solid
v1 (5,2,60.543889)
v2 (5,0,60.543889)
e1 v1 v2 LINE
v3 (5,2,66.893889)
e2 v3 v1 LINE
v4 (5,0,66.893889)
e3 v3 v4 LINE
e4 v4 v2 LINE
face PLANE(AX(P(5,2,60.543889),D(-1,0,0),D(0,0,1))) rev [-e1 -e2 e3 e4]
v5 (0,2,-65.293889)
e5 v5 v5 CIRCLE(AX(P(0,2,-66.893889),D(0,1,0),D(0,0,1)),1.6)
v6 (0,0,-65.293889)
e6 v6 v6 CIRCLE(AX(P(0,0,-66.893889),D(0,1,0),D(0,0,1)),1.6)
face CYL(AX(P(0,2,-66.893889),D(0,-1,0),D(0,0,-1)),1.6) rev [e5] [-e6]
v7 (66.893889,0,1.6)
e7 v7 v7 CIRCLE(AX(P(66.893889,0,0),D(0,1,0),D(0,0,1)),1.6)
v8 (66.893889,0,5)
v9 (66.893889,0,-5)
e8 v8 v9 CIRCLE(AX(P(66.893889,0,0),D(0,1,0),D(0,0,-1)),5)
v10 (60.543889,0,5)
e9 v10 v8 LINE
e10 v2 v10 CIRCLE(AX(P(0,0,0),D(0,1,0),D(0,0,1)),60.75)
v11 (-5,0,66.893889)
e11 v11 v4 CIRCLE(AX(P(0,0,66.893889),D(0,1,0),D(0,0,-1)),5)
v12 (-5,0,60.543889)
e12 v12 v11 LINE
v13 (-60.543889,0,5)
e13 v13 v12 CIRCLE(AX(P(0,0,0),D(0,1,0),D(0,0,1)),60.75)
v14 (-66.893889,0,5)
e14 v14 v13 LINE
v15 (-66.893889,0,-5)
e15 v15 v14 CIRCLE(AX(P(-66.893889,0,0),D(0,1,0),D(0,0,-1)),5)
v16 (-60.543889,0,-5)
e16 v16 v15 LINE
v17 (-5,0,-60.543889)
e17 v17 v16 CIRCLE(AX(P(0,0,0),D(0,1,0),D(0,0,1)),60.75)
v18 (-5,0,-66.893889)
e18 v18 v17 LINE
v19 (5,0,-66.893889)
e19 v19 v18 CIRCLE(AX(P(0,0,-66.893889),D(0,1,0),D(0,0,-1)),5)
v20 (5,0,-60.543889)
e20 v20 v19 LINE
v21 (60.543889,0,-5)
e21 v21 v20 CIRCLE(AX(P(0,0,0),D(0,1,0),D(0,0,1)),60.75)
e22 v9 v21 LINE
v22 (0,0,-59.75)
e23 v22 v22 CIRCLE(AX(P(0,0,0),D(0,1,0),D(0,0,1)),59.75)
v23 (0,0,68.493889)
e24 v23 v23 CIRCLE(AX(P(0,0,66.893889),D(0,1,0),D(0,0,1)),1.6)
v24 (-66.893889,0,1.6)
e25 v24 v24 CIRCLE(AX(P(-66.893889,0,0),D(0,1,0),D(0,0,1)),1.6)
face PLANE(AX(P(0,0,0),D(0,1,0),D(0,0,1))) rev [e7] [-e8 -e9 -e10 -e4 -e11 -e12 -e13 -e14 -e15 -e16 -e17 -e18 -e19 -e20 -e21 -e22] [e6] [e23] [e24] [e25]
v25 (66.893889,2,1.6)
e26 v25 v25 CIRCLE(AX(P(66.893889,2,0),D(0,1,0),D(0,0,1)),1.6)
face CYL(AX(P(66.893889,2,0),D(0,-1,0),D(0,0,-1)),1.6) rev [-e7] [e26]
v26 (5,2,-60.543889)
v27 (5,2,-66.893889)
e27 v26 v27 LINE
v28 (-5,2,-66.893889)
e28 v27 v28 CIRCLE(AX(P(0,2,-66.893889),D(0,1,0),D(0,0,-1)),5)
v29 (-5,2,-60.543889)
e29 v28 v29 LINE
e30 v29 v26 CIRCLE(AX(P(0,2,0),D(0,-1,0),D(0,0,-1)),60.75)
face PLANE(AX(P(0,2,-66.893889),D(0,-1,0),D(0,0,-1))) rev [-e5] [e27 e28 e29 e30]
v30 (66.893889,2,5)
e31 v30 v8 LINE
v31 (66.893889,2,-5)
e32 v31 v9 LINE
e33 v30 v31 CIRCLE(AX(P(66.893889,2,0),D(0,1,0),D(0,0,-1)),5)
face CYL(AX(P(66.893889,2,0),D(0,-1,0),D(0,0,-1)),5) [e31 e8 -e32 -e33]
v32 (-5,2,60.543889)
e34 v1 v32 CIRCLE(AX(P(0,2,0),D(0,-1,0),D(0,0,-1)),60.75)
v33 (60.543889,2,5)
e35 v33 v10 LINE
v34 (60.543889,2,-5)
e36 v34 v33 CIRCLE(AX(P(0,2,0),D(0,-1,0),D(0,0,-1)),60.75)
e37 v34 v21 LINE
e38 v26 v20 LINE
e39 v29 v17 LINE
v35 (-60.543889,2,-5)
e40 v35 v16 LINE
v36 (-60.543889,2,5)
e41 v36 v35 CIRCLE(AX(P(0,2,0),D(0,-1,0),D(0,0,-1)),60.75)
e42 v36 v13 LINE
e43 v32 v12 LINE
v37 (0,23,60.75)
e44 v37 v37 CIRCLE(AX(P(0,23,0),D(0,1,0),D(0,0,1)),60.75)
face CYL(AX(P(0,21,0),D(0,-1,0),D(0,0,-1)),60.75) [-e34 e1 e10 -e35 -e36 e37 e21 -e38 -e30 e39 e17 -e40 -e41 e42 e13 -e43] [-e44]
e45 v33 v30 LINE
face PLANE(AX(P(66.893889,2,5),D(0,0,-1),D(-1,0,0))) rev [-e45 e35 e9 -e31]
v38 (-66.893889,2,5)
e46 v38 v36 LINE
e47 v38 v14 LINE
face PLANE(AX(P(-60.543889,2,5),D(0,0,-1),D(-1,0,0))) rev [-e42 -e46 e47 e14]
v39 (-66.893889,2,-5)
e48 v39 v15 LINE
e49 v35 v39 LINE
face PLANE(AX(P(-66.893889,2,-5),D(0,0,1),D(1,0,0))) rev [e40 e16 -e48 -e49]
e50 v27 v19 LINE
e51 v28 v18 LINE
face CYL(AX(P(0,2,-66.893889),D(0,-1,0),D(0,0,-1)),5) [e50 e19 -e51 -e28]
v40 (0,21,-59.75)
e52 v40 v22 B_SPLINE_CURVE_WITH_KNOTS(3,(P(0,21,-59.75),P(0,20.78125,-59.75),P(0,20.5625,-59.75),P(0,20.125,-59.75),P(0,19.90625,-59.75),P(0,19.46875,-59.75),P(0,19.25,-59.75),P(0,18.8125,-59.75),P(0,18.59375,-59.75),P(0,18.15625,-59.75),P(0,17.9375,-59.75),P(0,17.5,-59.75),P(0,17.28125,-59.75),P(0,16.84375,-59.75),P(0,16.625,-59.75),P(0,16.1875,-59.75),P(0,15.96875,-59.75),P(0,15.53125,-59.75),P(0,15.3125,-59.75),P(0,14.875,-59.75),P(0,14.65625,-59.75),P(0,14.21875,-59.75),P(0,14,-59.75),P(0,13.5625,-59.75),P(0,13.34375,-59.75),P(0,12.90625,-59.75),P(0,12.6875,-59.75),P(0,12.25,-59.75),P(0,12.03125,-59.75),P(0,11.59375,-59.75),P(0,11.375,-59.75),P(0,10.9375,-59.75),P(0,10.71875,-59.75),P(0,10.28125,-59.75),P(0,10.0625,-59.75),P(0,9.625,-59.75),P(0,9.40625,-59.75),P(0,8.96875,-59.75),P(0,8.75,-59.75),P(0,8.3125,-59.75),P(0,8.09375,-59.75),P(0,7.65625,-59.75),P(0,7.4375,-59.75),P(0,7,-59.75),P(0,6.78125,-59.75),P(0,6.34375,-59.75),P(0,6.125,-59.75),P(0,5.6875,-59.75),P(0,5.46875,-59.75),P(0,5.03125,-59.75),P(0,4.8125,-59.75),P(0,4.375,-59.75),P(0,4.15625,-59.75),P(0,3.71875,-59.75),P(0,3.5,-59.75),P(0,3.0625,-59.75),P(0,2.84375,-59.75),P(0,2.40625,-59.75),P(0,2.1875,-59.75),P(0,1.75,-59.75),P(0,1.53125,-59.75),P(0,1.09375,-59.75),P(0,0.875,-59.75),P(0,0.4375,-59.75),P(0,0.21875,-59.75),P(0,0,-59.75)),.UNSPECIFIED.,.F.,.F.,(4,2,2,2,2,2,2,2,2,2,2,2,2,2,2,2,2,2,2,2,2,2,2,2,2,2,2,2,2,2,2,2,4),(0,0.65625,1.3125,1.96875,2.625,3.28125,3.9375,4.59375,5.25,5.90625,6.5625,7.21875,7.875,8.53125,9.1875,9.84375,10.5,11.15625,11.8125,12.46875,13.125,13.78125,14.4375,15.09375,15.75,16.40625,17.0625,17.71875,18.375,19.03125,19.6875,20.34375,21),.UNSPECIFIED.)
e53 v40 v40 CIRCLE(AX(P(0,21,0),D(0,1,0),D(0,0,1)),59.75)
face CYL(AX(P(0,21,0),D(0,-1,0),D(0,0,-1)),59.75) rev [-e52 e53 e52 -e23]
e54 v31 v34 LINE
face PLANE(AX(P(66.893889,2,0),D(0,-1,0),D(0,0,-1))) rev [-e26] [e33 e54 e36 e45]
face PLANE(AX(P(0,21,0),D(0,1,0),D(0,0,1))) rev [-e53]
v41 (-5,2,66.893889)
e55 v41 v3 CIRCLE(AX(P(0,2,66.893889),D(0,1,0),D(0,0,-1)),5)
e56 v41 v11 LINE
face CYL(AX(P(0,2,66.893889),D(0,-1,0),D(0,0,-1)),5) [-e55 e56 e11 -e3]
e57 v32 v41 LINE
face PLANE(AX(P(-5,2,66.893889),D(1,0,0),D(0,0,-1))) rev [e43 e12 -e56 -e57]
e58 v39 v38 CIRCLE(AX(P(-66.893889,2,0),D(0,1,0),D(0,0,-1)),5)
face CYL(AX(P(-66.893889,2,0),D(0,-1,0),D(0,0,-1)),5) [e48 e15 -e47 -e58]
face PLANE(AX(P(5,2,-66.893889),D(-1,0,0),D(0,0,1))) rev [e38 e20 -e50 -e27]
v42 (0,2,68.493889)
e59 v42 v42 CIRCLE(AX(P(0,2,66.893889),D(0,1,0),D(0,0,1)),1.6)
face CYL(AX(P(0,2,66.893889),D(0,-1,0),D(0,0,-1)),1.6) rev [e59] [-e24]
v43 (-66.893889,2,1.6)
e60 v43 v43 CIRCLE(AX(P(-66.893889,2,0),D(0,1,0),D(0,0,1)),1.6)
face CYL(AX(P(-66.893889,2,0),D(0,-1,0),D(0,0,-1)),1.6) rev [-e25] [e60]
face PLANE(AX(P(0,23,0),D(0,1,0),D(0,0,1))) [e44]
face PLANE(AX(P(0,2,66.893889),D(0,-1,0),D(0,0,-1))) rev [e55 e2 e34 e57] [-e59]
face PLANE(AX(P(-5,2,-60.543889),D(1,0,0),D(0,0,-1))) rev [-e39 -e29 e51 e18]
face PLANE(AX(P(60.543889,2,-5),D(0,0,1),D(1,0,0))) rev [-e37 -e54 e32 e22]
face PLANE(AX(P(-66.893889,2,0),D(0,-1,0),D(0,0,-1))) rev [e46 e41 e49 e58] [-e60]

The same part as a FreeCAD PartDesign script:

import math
import FreeCAD as App
import Part
import Sketcher
Q = App.Units.Quantity

doc = App.newDocument("Part")
body = doc.addObject("PartDesign::Body", "Body")

# Sketch on XZ plane
sketch1 = doc.addObject("Sketcher::SketchObject", "Sketch")
body.addObject(sketch1)
sketch1.AttachmentSupport = (doc.XZ_Plane, [""])
sketch1.MapMode = "FlatFace"
sketch1.addGeometry([
    Part.Circle(App.Vector(0, 0, 0), App.Vector(0, 0, 1), 60.75),
    Part.Circle(App.Vector(0, 0, 0), App.Vector(0, 0, 1), 59.75),
], False)
sketch1.addConstraint([
    Sketcher.Constraint("Coincident", 0, 3, -1, 1),
    Sketcher.Constraint("Coincident", 1, 3, -1, 1),
    Sketcher.Constraint("Diameter", 0, Q("121.5 mm")),
    Sketcher.Constraint("Diameter", 1, Q("119.5 mm")),
])
pad1 = doc.addObject("PartDesign::Pad", "Pad")
body.addObject(pad1)
pad1.Profile = sketch1
pad1.Length = 21
pad1.Reversed = True

# Sketch on XZ plane
sketch2 = doc.addObject("Sketcher::SketchObject", "Sketch001")
body.addObject(sketch2)
sketch2.AttachmentSupport = (doc.XZ_Plane, [""])
sketch2.MapMode = "FlatFace"
sketch2.AttachmentOffset = App.Placement(App.Vector(0, 0, -21), App.Rotation())
sketch2.addGeometry(Part.Circle(App.Vector(0, 0, 0), App.Vector(0, 0, 1), 60.75), False)
sketch2.addConstraint([
    Sketcher.Constraint("Coincident", 0, 3, -1, 1),
    Sketcher.Constraint("Diameter", 0, Q("121.5 mm")),
])
pad2 = doc.addObject("PartDesign::Pad", "Pad001")
body.addObject(pad2)
pad2.Profile = sketch2
pad2.Length = 2
pad2.Reversed = True

# Sketch on XZ plane
sketch3 = doc.addObject("Sketcher::SketchObject", "Sketch002")
body.addObject(sketch3)
sketch3.AttachmentSupport = (doc.XZ_Plane, [""])
sketch3.MapMode = "FlatFace"
sketch3.addGeometry([
    Part.LineSegment(App.Vector(5, -60.543889, 0), App.Vector(5, -66.893889, 0)),  # 0
    Part.ArcOfCircle(Part.Circle(App.Vector(0, -66.893889, 0), App.Vector(0, 0, 1), 5), math.radians(180), math.radians(360)),  # 1
    Part.LineSegment(App.Vector(-5, -66.893889, 0), App.Vector(-5, -60.543889, 0)),  # 2
    Part.LineSegment(App.Vector(-5, -60.543889, 0), App.Vector(5, -60.543889, 0)),  # 3
    Part.Circle(App.Vector(0, -66.893889, 0), App.Vector(0, 0, 1), 1.6),  # 4
    Part.LineSegment(App.Vector(66.893889, -5, 0), App.Vector(60.543889, -5, 0)),  # 5
    Part.LineSegment(App.Vector(60.543889, -5, 0), App.Vector(60.543889, 5, 0)),  # 6
    Part.LineSegment(App.Vector(60.543889, 5, 0), App.Vector(66.893889, 5, 0)),  # 7
    Part.ArcOfCircle(Part.Circle(App.Vector(66.893889, 0, 0), App.Vector(0, 0, 1), 5), math.radians(-90), math.radians(90)),  # 8
    Part.Circle(App.Vector(66.893889, 0, 0), App.Vector(0, 0, 1), 1.6),  # 9
    Part.LineSegment(App.Vector(5, 66.893889, 0), App.Vector(5, 60.543889, 0)),  # 10
    Part.LineSegment(App.Vector(5, 60.543889, 0), App.Vector(-5, 60.543889, 0)),  # 11
    Part.LineSegment(App.Vector(-5, 60.543889, 0), App.Vector(-5, 66.893889, 0)),  # 12
    Part.ArcOfCircle(Part.Circle(App.Vector(0, 66.893889, 0), App.Vector(0, 0, 1), 5), math.radians(0), math.radians(180)),  # 13
    Part.Circle(App.Vector(0, 66.893889, 0), App.Vector(0, 0, 1), 1.6),  # 14
    Part.LineSegment(App.Vector(-66.893889, 5, 0), App.Vector(-60.543889, 5, 0)),  # 15
    Part.LineSegment(App.Vector(-60.543889, 5, 0), App.Vector(-60.543889, -5, 0)),  # 16
    Part.LineSegment(App.Vector(-60.543889, -5, 0), App.Vector(-66.893889, -5, 0)),  # 17
    Part.ArcOfCircle(Part.Circle(App.Vector(-66.893889, 0, 0), App.Vector(0, 0, 1), 5), math.radians(90), math.radians(270)),  # 18
    Part.Circle(App.Vector(-66.893889, 0, 0), App.Vector(0, 0, 1), 1.6),  # 19
], False)
sketch3.addConstraint([
    Sketcher.Constraint("Tangent", 0, 2, 1, 2),
    Sketcher.Constraint("Tangent", 1, 1, 2, 1),
    Sketcher.Constraint("Coincident", 2, 2, 3, 1),
    Sketcher.Constraint("Coincident", 3, 2, 0, 1),
    Sketcher.Constraint("Coincident", 5, 2, 6, 1),
    Sketcher.Constraint("Coincident", 6, 2, 7, 1),
    Sketcher.Constraint("Tangent", 7, 2, 8, 2),
    Sketcher.Constraint("Tangent", 8, 1, 5, 1),
    Sketcher.Constraint("Coincident", 10, 2, 11, 1),
    Sketcher.Constraint("Coincident", 11, 2, 12, 1),
    Sketcher.Constraint("Tangent", 12, 2, 13, 2),
    Sketcher.Constraint("Tangent", 13, 1, 10, 1),
    Sketcher.Constraint("Coincident", 15, 2, 16, 1),
    Sketcher.Constraint("Coincident", 16, 2, 17, 1),
    Sketcher.Constraint("Tangent", 17, 2, 18, 2),
    Sketcher.Constraint("Tangent", 18, 1, 15, 1),
    Sketcher.Constraint("Vertical", 0),
    Sketcher.Constraint("Vertical", 2),
    Sketcher.Constraint("Horizontal", 3),
    Sketcher.Constraint("Horizontal", 5),
    Sketcher.Constraint("Vertical", 6),
    Sketcher.Constraint("Horizontal", 7),
    Sketcher.Constraint("Vertical", 10),
    Sketcher.Constraint("Horizontal", 11),
    Sketcher.Constraint("Vertical", 12),
    Sketcher.Constraint("Horizontal", 15),
    Sketcher.Constraint("Vertical", 16),
    Sketcher.Constraint("Horizontal", 17),
    Sketcher.Constraint("Coincident", 4, 3, 1, 3),
    Sketcher.Constraint("Coincident", 9, 3, 8, 3),
    Sketcher.Constraint("Coincident", 14, 3, 13, 3),
    Sketcher.Constraint("Coincident", 19, 3, 18, 3),
    Sketcher.Constraint("Equal", 1, 8),
    Sketcher.Constraint("Equal", 4, 9),
    Sketcher.Constraint("Equal", 8, 13),
    Sketcher.Constraint("Equal", 9, 14),
    Sketcher.Constraint("Equal", 13, 18),
    Sketcher.Constraint("Equal", 14, 19),
    Sketcher.Constraint("Symmetric", 1, 3, 13, 3, -1, 1),
    Sketcher.Constraint("Symmetric", 8, 3, 18, 3, -1, 1),
    Sketcher.Constraint("Symmetric", 6, 2, 15, 2, -2),
    Sketcher.Constraint("Symmetric", 3, 2, 10, 2, -1),
    Sketcher.Constraint("Equal", 17, 0),
    Sketcher.Constraint("Radius", 1, Q("5 mm")),
    Sketcher.Constraint("Diameter", 4, Q("3.2 mm")),
    Sketcher.Constraint("DistanceX", 5, 2, 5, 1, Q("6.35 mm")),
    Sketcher.Constraint("DistanceY", 1, 3, -1, 1, Q("66.893889 mm")),
    Sketcher.Constraint("DistanceX", -1, 1, 8, 3, Q("66.893889 mm")),
])
pad3 = doc.addObject("PartDesign::Pad", "Pad002")
body.addObject(pad3)
pad3.Profile = sketch3
pad3.Length = 2
pad3.Reversed = True

doc.recompute()
